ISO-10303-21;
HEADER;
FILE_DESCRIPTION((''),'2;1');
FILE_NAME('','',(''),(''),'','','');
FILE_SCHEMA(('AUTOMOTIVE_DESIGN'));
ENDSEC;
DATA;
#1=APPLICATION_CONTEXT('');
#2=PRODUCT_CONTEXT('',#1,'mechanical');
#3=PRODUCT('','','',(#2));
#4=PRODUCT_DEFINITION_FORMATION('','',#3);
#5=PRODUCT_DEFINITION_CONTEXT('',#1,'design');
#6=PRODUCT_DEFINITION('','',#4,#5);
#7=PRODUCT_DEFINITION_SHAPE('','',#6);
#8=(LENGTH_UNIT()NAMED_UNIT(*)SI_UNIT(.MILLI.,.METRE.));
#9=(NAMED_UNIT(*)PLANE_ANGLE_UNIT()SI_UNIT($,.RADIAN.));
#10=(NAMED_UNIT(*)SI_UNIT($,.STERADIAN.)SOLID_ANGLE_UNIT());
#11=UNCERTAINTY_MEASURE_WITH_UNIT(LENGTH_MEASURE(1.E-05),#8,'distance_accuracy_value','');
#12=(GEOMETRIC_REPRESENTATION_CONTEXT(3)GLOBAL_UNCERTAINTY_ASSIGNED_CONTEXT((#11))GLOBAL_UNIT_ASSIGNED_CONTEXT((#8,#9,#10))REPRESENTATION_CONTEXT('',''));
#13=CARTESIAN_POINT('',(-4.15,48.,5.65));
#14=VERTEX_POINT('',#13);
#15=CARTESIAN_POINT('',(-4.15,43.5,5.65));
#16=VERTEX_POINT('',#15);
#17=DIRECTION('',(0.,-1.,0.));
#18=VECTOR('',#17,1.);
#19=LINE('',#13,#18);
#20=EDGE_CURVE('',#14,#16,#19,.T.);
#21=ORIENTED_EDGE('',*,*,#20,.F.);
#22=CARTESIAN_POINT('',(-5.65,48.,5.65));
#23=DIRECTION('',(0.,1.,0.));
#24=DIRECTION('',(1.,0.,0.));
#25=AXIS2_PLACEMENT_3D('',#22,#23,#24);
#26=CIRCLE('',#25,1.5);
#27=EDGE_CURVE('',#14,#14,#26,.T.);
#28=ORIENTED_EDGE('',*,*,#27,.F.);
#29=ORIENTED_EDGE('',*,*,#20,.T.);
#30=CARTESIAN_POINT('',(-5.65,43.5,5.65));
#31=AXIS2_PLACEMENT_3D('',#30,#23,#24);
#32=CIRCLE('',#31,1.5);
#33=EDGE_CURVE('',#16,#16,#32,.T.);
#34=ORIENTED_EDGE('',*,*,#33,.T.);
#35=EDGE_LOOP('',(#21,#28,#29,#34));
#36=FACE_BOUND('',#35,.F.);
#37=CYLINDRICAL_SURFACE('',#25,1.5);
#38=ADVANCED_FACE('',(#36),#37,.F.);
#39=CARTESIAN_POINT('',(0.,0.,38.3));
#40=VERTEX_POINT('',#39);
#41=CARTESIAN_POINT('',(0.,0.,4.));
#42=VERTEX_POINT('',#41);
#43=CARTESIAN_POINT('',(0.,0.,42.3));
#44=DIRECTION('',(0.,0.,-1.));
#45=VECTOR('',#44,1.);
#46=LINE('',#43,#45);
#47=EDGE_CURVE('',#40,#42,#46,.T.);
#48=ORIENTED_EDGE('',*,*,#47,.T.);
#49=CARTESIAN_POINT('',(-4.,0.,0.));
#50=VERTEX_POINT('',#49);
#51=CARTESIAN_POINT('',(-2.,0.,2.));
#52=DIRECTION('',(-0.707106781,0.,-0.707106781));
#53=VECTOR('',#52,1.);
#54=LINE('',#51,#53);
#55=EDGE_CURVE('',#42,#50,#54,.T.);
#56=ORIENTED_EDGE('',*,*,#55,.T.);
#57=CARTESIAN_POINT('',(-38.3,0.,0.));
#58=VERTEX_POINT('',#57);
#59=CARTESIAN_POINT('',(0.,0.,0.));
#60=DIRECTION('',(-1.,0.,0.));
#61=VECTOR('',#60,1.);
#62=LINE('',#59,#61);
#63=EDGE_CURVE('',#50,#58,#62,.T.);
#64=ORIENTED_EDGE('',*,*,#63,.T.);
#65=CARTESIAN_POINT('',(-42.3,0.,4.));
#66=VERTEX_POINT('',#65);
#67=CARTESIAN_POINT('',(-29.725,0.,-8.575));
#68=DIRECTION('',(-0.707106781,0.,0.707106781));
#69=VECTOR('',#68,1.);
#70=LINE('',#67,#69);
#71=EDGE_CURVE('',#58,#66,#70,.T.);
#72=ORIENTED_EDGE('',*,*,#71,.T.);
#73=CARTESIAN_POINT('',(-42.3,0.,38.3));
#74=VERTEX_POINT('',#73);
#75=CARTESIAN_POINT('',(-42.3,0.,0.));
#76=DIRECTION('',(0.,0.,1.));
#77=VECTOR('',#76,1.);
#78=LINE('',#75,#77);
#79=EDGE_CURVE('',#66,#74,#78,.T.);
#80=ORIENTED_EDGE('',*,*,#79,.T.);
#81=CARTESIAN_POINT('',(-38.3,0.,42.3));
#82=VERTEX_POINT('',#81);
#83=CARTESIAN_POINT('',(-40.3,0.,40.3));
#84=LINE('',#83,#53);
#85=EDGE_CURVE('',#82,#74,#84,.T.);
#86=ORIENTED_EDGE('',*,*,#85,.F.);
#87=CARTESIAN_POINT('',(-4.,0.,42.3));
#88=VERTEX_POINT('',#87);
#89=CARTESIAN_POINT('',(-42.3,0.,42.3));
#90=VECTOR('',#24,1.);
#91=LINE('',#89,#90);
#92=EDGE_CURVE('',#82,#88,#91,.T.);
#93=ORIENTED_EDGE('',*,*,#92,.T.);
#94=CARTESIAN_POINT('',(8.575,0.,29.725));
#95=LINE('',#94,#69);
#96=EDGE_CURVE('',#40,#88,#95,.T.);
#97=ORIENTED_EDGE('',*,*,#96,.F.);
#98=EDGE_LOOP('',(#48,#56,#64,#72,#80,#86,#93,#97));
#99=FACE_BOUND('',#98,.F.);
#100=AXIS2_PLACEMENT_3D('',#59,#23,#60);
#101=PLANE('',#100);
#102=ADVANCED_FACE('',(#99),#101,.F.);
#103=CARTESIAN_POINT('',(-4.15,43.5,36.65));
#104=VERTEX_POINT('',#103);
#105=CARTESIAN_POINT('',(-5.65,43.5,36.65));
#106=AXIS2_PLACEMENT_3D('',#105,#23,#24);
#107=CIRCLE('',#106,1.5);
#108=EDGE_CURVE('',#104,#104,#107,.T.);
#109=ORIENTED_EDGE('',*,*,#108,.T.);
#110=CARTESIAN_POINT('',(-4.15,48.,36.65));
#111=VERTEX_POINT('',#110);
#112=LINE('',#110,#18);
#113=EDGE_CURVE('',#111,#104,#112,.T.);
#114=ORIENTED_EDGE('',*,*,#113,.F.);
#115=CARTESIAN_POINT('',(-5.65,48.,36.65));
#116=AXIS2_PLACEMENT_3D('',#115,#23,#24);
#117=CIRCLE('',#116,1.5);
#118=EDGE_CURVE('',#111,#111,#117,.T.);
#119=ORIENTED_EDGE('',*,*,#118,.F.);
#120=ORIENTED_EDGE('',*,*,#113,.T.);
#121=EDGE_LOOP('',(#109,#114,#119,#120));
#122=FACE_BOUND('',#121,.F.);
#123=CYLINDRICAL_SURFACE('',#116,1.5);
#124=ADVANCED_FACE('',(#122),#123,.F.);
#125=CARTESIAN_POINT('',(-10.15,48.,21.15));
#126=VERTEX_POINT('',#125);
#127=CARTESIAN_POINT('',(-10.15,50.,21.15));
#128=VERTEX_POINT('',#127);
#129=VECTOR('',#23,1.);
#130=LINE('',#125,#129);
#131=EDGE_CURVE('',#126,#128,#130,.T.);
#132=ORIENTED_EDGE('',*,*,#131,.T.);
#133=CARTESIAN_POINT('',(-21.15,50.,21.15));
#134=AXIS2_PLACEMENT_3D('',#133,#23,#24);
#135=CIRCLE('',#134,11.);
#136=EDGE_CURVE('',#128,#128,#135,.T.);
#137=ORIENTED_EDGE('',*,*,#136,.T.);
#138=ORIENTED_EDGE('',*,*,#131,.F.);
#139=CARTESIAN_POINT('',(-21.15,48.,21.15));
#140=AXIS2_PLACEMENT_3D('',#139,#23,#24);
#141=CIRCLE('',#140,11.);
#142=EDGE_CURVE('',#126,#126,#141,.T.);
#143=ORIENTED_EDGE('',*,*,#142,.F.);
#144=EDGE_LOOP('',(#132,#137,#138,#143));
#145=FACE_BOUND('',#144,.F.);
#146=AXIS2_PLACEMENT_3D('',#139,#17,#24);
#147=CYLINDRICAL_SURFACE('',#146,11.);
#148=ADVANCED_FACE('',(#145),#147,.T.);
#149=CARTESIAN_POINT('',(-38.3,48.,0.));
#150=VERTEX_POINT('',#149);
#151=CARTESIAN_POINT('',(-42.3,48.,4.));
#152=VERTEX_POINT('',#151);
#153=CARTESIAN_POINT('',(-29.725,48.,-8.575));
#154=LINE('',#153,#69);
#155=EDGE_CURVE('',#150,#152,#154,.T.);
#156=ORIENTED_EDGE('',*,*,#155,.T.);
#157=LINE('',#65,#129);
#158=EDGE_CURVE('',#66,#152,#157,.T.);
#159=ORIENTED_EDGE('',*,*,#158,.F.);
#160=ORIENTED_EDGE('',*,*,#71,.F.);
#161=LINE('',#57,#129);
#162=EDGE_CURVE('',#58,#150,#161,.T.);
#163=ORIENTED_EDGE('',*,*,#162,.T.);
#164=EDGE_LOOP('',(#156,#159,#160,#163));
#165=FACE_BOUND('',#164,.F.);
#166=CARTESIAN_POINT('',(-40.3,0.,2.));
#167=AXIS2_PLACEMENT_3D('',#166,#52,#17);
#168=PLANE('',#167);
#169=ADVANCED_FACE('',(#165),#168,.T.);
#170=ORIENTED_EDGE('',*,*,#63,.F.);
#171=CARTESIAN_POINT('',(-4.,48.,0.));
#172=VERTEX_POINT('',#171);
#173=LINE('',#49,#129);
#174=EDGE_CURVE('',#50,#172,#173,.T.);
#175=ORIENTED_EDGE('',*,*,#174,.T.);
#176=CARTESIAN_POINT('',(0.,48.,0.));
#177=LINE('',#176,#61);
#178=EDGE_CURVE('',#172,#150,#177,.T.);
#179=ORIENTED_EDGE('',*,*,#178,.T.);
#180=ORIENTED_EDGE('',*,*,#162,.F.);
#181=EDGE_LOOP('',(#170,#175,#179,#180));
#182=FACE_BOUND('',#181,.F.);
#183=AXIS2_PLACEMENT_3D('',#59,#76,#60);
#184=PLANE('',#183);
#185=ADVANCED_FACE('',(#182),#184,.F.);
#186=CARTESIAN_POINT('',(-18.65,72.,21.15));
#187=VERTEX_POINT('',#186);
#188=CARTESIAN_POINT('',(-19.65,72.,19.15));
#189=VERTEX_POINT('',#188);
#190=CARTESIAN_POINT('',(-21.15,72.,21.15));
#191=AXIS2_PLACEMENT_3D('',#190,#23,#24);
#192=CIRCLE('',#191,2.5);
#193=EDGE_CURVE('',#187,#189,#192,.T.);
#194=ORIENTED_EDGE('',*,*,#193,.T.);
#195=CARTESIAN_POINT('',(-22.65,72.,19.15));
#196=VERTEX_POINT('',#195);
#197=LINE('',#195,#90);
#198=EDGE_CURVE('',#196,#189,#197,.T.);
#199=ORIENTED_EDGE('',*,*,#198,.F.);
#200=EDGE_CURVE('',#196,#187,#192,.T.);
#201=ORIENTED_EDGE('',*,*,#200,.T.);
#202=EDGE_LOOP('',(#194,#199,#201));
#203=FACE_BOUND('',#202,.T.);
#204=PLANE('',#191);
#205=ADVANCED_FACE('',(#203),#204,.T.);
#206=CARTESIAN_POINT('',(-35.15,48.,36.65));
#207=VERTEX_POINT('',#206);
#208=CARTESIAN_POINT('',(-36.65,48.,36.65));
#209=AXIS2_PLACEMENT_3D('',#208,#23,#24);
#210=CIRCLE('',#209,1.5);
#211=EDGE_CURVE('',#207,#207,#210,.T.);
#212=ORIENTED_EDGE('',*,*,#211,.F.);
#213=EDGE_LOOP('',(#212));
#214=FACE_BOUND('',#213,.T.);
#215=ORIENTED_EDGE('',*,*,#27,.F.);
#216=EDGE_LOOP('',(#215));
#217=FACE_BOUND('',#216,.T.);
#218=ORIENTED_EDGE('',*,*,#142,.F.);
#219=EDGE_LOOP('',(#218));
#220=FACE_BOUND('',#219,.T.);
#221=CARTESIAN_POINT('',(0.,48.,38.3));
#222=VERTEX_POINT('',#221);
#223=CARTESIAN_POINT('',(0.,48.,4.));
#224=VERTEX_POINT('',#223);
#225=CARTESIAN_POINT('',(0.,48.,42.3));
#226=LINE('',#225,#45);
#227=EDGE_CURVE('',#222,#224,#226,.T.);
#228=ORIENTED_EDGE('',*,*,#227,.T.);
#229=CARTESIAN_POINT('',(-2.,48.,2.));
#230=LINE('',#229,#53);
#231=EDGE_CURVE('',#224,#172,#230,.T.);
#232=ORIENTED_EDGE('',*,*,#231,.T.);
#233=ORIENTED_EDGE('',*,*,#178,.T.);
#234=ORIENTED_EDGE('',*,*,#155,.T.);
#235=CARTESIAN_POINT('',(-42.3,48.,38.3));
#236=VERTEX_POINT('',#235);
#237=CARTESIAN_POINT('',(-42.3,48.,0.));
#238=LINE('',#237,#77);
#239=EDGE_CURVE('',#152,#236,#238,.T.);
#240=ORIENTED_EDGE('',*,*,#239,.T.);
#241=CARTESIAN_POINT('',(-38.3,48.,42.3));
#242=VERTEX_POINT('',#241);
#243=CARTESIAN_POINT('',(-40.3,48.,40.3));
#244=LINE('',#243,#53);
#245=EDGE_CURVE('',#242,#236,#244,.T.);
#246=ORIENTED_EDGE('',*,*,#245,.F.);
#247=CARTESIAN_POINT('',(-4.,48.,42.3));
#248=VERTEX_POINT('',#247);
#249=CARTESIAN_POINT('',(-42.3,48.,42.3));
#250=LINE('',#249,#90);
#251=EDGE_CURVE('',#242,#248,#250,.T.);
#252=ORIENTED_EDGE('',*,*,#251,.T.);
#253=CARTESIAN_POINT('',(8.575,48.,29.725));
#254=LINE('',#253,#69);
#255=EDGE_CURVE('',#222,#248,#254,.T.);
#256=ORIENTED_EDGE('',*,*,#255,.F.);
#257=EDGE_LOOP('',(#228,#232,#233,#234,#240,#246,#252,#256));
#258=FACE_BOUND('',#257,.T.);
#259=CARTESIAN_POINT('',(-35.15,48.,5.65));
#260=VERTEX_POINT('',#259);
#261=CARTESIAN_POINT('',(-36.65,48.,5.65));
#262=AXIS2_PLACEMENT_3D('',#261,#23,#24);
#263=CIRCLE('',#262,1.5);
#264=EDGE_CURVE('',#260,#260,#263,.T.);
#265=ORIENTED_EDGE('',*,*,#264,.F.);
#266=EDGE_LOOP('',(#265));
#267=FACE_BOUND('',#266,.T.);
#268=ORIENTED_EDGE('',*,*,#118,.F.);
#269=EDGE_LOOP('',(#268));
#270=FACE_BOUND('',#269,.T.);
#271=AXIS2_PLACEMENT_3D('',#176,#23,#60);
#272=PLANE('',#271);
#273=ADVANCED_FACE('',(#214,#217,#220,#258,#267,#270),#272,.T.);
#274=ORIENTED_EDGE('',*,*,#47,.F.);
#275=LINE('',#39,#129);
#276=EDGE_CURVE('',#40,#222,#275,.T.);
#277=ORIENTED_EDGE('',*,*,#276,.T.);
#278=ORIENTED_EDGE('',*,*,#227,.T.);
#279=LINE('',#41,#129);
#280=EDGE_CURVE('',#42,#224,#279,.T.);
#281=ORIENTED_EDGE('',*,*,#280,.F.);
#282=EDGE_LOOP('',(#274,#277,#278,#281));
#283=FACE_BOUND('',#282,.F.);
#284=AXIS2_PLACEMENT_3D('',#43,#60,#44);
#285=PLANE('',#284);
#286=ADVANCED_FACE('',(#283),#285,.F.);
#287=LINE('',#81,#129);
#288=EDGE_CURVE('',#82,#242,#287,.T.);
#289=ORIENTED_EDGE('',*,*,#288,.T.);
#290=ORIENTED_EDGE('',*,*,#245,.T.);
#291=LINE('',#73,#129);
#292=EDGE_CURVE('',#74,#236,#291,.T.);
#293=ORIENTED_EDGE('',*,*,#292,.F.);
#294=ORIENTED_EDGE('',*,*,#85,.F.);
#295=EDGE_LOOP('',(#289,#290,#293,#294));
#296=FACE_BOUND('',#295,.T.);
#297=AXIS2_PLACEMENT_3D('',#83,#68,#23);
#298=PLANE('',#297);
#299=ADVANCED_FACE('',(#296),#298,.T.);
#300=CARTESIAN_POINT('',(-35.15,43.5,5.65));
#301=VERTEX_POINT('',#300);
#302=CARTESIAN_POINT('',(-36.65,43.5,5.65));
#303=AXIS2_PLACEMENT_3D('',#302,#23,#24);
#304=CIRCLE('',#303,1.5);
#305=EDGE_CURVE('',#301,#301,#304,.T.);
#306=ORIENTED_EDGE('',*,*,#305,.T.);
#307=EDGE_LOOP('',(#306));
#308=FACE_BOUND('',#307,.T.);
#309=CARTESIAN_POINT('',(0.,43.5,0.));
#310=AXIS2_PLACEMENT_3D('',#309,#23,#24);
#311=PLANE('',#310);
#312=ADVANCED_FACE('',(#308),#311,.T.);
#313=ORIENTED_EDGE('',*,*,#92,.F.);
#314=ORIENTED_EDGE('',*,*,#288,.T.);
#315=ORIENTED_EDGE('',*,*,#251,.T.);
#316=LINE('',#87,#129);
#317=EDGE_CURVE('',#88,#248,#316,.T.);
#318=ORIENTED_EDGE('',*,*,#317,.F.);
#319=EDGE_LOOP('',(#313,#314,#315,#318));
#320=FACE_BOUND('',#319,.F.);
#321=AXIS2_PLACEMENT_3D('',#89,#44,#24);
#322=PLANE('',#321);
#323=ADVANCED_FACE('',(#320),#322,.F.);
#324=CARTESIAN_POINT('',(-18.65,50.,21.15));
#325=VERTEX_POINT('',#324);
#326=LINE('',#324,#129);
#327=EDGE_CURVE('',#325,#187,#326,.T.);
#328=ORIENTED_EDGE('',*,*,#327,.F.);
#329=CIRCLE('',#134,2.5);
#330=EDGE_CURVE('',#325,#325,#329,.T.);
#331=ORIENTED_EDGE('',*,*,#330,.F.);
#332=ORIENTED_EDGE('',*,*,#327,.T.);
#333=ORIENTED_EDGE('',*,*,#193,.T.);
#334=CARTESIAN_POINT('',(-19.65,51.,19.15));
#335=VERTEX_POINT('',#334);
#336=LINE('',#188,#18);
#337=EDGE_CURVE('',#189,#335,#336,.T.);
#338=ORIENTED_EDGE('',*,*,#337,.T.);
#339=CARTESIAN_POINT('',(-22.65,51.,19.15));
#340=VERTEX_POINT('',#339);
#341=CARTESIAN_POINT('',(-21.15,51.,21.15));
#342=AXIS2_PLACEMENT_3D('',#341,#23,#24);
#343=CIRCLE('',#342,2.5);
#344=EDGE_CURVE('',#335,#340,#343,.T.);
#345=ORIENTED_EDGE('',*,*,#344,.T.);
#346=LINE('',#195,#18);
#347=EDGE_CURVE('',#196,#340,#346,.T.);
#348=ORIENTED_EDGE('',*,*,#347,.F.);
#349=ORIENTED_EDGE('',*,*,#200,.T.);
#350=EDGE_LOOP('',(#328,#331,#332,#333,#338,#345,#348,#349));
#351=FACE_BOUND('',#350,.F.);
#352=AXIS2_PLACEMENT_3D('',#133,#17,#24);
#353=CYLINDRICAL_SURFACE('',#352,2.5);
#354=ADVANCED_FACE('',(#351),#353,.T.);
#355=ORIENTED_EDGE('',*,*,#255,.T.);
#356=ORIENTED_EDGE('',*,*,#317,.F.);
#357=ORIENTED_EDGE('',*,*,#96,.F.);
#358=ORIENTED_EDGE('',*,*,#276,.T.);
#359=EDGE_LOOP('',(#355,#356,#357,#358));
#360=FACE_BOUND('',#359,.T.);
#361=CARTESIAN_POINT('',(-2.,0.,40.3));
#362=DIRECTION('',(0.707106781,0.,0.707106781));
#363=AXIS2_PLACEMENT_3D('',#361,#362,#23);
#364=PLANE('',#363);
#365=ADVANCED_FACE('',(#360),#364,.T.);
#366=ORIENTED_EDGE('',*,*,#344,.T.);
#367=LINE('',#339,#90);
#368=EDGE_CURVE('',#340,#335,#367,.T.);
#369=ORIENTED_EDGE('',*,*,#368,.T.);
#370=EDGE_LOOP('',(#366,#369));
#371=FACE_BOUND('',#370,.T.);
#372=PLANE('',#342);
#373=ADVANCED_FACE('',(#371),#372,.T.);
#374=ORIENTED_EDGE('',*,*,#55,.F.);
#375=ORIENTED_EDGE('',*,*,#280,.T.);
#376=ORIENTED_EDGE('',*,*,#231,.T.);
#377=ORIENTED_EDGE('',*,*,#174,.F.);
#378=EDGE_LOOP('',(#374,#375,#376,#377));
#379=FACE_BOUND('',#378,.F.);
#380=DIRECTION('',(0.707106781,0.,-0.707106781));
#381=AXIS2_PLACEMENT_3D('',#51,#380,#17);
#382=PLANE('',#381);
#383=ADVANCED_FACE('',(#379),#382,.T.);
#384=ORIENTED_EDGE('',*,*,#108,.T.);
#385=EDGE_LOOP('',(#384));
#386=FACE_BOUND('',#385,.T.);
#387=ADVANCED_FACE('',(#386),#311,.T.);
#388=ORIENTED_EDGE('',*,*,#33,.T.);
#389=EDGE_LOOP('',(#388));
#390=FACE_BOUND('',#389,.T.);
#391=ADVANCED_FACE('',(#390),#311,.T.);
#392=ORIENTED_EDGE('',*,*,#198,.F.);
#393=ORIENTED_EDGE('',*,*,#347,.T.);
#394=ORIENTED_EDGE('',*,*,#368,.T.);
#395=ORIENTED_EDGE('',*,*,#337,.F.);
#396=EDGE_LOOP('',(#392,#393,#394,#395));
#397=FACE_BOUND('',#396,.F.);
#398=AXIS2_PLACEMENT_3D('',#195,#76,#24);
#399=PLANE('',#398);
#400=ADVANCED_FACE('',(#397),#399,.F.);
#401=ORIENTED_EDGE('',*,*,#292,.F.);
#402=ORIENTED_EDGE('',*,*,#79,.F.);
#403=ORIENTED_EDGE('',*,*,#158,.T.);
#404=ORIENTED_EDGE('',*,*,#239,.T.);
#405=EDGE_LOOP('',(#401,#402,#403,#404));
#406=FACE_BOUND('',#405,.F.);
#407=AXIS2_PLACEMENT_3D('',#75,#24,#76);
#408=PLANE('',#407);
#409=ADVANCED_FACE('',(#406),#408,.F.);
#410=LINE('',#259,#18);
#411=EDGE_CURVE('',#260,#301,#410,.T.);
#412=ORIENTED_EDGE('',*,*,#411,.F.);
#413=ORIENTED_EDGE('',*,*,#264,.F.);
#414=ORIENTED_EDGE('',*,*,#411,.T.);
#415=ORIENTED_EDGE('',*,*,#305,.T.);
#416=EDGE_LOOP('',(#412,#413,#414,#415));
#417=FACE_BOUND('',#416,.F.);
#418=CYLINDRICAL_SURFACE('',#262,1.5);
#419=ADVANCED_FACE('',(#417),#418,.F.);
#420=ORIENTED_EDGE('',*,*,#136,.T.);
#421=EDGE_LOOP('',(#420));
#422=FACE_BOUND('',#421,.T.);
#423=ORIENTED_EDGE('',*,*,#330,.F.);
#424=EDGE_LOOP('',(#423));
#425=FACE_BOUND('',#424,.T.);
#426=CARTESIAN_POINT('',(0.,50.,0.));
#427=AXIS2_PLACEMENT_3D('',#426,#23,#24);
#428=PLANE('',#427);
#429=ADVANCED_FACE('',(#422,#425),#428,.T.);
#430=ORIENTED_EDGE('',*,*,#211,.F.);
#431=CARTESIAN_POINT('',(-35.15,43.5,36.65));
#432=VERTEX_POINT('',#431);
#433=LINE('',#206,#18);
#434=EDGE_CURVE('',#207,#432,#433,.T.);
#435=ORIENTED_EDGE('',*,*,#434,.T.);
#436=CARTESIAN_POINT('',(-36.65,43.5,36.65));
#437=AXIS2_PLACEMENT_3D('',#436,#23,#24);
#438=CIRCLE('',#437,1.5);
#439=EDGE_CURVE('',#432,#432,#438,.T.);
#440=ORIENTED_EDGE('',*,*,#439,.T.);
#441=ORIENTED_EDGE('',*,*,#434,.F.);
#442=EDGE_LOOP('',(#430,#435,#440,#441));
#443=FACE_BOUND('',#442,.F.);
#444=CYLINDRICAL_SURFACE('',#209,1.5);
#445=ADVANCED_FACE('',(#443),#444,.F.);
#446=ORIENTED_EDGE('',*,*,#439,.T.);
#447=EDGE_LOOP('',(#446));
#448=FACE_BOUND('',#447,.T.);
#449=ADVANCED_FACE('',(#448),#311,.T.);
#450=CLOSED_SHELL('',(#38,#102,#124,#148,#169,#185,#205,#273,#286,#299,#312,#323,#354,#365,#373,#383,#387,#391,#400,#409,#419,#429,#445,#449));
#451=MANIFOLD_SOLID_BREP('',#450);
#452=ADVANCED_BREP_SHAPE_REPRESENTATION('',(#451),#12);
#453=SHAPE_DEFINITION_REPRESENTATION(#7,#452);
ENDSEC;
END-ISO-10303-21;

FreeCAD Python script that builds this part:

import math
import FreeCAD as App
import Part
import Sketcher

V = App.Vector
Q = App.Units.Quantity


def edges_at(feature, points):
    """Names of the edges that pass closest to the given points."""
    edges = feature.Shape.Edges
    near = lambda p: min(range(len(edges)), key=lambda i: edges[i].distToShape(Part.Vertex(*p))[0])
    return sorted({f"Edge{near(p) + 1}" for p in points})


def add_polygon(sketch, points):
    """Adds a closed chain of lines whose ends are joined by coincident constraints."""
    first, n = sketch.GeometryCount, len(points)
    for a, b in zip(points, points[1:] + points[:1]):
        sketch.addGeometry(Part.LineSegment(App.Vector(*a, 0), App.Vector(*b, 0)), False)
    for i in range(n):
        sketch.addConstraint(Sketcher.Constraint("Coincident", first + i, 2, first + (i + 1) % n, 1))

doc = App.newDocument("Part")
body = doc.addObject("PartDesign::Body", "Body")

sketch1 = doc.addObject("Sketcher::SketchObject", "Sketch")
body.addObject(sketch1)
sketch1.AttachmentSupport = (doc.XZ_Plane, [""])
sketch1.MapMode = "FlatFace"
add_polygon(sketch1, [(0, 42.3), (0, 0), (-42.3, 0), (-42.3, 42.3)])
sketch1.addConstraint(Sketcher.Constraint("Vertical", 0))
sketch1.addConstraint(Sketcher.Constraint("Horizontal", 1))
sketch1.addConstraint(Sketcher.Constraint("Vertical", 2))
sketch1.addConstraint(Sketcher.Constraint("Horizontal", 3))
sketch1.addConstraint(Sketcher.Constraint("Coincident", 0, 2, -1, 1))
sketch1.addConstraint(Sketcher.Constraint("Equal", 3, 0))
sketch1.addConstraint(Sketcher.Constraint("DistanceX", 1, 2, 1, 1, Q("42.3 mm")))
pad1 = doc.addObject("PartDesign::Pad", "Pad")
body.addObject(pad1)
pad1.Profile = sketch1
pad1.Length = 48
pad1.Reversed = True

sketch2 = doc.addObject("Sketcher::SketchObject", "Sketch001")
body.addObject(sketch2)
sketch2.AttachmentSupport = (doc.XZ_Plane, [""])
sketch2.MapMode = "FlatFace"
sketch2.AttachmentOffset = App.Placement(V(0, 0, -48), App.Rotation())
sketch2.addGeometry(Part.Circle(V(-21.15, 21.15, 0), V(0, 0, 1), 11), False)
sketch2.addConstraint(Sketcher.Constraint("Diameter", 0, Q("22 mm")))
sketch2.addConstraint(Sketcher.Constraint("DistanceX", 0, 3, -1, 1, Q("21.15 mm")))
sketch2.addConstraint(Sketcher.Constraint("DistanceY", -1, 1, 0, 3, Q("21.15 mm")))
pad2 = doc.addObject("PartDesign::Pad", "Pad001")
body.addObject(pad2)
pad2.Profile = sketch2
pad2.Length = 2
pad2.Reversed = True

sketch3 = doc.addObject("Sketcher::SketchObject", "Sketch002")
body.addObject(sketch3)
sketch3.AttachmentSupport = (doc.XZ_Plane, [""])
sketch3.MapMode = "FlatFace"
sketch3.AttachmentOffset = App.Placement(V(0, 0, -50), App.Rotation())
sketch3.addGeometry(Part.Circle(V(-21.15, 21.15, 0), V(0, 0, 1), 2.5), False)
sketch3.addConstraint(Sketcher.Constraint("Diameter", 0, Q("5 mm")))
sketch3.addConstraint(Sketcher.Constraint("DistanceX", 0, 3, -1, 1, Q("21.15 mm")))
sketch3.addConstraint(Sketcher.Constraint("DistanceY", -1, 1, 0, 3, Q("21.15 mm")))
pad3 = doc.addObject("PartDesign::Pad", "Pad002")
body.addObject(pad3)
pad3.Profile = sketch3
pad3.Length = 22
pad3.Reversed = True

sketch4 = doc.addObject("Sketcher::SketchObject", "Sketch003")
body.addObject(sketch4)
sketch4.AttachmentSupport = (doc.XZ_Plane, [""])
sketch4.MapMode = "FlatFace"
sketch4.AttachmentOffset = App.Placement(V(0, 0, -72), App.Rotation())
sketch4.addGeometry(Part.LineSegment(V(-22.65, 19.15, 0), V(-19.65, 19.15, 0)), False)
sketch4.addGeometry(Part.ArcOfCircle(Part.Circle(V(-21.15, 21.15, 0), V(0, 0, 1), 2.5), math.radians(-126.869898), math.radians(-53.130102)), False)
sketch4.addConstraint(Sketcher.Constraint("Coincident", 0, 1, 1, 1))
sketch4.addConstraint(Sketcher.Constraint("Coincident", 1, 2, 0, 2))
sketch4.addConstraint(Sketcher.Constraint("Horizontal", 0))
sketch4.addConstraint(Sketcher.Constraint("DistanceY", 0, 1, 1, 3, Q("2 mm")))
sketch4.addConstraint(Sketcher.Constraint("Radius", 1, Q("2.5 mm")))
sketch4.addConstraint(Sketcher.Constraint("DistanceX", 1, 3, -1, 1, Q("21.15 mm")))
sketch4.addConstraint(Sketcher.Constraint("DistanceY", -1, 1, 1, 3, Q("21.15 mm")))
pocket1 = doc.addObject("PartDesign::Pocket", "Pocket")
body.addObject(pocket1)
pocket1.Profile = sketch4
pocket1.Length = 21
pocket1.Reversed = True

sketch5 = doc.addObject("Sketcher::SketchObject", "Sketch004")
body.addObject(sketch5)
sketch5.AttachmentSupport = (doc.XZ_Plane, [""])
sketch5.MapMode = "FlatFace"
sketch5.AttachmentOffset = App.Placement(V(0, 0, -48), App.Rotation())
sketch5.addGeometry(Part.Circle(V(-36.65, 5.65, 0), V(0, 0, 1), 1.5), False)
sketch5.addGeometry(Part.Circle(V(-5.65, 5.65, 0), V(0, 0, 1), 1.5), False)
sketch5.addGeometry(Part.Circle(V(-5.65, 36.65, 0), V(0, 0, 1), 1.5), False)
sketch5.addGeometry(Part.Circle(V(-36.65, 36.65, 0), V(0, 0, 1), 1.5), False)
sketch5.addConstraint(Sketcher.Constraint("Equal", 0, 1))
sketch5.addConstraint(Sketcher.Constraint("Equal", 1, 2))
sketch5.addConstraint(Sketcher.Constraint("Equal", 2, 3))
sketch5.addConstraint(Sketcher.Constraint("Horizontal", 0, 3, 1, 3))
sketch5.addConstraint(Sketcher.Constraint("Horizontal", 2, 3, 3, 3))
sketch5.addConstraint(Sketcher.Constraint("Vertical", 1, 3, 2, 3))
sketch5.addConstraint(Sketcher.Constraint("Vertical", 0, 3, 3, 3))
sketch5.addConstraint(Sketcher.Constraint("Diameter", 0, Q("3 mm")))
sketch5.addConstraint(Sketcher.Constraint("DistanceX", 0, 3, 1, 3, Q("31 mm")))
sketch5.addConstraint(Sketcher.Constraint("DistanceY", 1, 3, 2, 3, Q("31 mm")))
sketch5.addConstraint(Sketcher.Constraint("DistanceY", -1, 1, 0, 3, Q("5.65 mm")))
sketch5.addConstraint(Sketcher.Constraint("DistanceX", 1, 3, -1, 1, Q("5.65 mm")))
pocket2 = doc.addObject("PartDesign::Pocket", "Pocket001")
body.addObject(pocket2)
pocket2.Profile = sketch5
pocket2.Length = 4.5
pocket2.Reversed = True
doc.recompute()

chamfer = doc.addObject("PartDesign::Chamfer", "Chamfer")
body.addObject(chamfer)
chamfer.Base = (pocket2, edges_at(pocket2, [
    (-42.3, 24, 0),
    (-42.3, 24, 42.3),
    (0, 24, 0),
    (0, 24, 42.3),
]))
chamfer.Size = 4

doc.recompute()
